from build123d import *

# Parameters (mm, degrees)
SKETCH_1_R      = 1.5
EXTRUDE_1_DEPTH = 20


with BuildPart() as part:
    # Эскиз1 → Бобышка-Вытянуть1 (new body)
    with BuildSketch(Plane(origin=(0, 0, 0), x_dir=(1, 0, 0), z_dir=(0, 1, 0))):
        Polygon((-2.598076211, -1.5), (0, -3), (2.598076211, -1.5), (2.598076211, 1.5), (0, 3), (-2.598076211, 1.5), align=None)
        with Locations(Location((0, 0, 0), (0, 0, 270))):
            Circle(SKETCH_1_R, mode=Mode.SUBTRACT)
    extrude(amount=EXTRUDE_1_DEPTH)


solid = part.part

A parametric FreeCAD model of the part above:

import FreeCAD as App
import Part
import Sketcher

V = App.Vector
Q = App.Units.Quantity

doc = App.newDocument("Part")
body = doc.addObject("PartDesign::Body", "Body")

# Sketch on XZ plane
sketch1 = body.newObject("Sketcher::SketchObject", "Sketch")
sketch1.AttachmentSupport = (doc.getObject("XZ_Plane"), [""])
sketch1.MapMode = "FlatFace"
sketch1.addGeometry([
    Part.LineSegment(V(-2.6, 1.5, 0), V(0, 3, 0)),  # 0
    Part.LineSegment(V(0, 3, 0), V(2.6, 1.5, 0)),  # 1
    Part.LineSegment(V(2.6, 1.5, 0), V(2.6, -1.5, 0)),  # 2
    Part.LineSegment(V(2.6, -1.5, 0), V(0, -3, 0)),  # 3
    Part.LineSegment(V(0, -3, 0), V(-2.6, -1.5, 0)),  # 4
    Part.LineSegment(V(-2.6, -1.5, 0), V(-2.6, 1.5, 0)),  # 5
    Part.Circle(V(0, 0, 0), V(0, 0, 1), 1.5),  # 6
], False)
sketch1.addConstraint([
    Sketcher.Constraint("Coincident", 0, 2, 1, 1),
    Sketcher.Constraint("Coincident", 1, 2, 2, 1),
    Sketcher.Constraint("Coincident", 2, 2, 3, 1),
    Sketcher.Constraint("Coincident", 3, 2, 4, 1),
    Sketcher.Constraint("Coincident", 4, 2, 5, 1),
    Sketcher.Constraint("Coincident", 5, 2, 0, 1),
    Sketcher.Constraint("Vertical", 2),
    Sketcher.Constraint("Vertical", 5),
    Sketcher.Constraint("Coincident", 6, 3, -1, 1),
    Sketcher.Constraint("Symmetric", 0, 2, 3, 2, -1, 1),
    Sketcher.Constraint("Symmetric", 1, 2, 4, 2, -1, 1),
    Sketcher.Constraint("PointOnObject", 0, 2, -2),
    Sketcher.Constraint("Parallel", 0, 3),
    Sketcher.Constraint("Horizontal", 2, 2, 4, 2),
    Sketcher.Constraint("Diameter", 6, 3.0),
    Sketcher.Constraint("DistanceY", 2, 2, 2, 1, 3.0),
    Sketcher.Constraint("Angle", 0, Q("30 deg")),
    Sketcher.Constraint("Distance", 0, 3.0),
])
pad1 = body.newObject("PartDesign::Pad", "Pad")
pad1.Profile = sketch1
pad1.Length = 20
pad1.Reversed = True

doc.recompute()
